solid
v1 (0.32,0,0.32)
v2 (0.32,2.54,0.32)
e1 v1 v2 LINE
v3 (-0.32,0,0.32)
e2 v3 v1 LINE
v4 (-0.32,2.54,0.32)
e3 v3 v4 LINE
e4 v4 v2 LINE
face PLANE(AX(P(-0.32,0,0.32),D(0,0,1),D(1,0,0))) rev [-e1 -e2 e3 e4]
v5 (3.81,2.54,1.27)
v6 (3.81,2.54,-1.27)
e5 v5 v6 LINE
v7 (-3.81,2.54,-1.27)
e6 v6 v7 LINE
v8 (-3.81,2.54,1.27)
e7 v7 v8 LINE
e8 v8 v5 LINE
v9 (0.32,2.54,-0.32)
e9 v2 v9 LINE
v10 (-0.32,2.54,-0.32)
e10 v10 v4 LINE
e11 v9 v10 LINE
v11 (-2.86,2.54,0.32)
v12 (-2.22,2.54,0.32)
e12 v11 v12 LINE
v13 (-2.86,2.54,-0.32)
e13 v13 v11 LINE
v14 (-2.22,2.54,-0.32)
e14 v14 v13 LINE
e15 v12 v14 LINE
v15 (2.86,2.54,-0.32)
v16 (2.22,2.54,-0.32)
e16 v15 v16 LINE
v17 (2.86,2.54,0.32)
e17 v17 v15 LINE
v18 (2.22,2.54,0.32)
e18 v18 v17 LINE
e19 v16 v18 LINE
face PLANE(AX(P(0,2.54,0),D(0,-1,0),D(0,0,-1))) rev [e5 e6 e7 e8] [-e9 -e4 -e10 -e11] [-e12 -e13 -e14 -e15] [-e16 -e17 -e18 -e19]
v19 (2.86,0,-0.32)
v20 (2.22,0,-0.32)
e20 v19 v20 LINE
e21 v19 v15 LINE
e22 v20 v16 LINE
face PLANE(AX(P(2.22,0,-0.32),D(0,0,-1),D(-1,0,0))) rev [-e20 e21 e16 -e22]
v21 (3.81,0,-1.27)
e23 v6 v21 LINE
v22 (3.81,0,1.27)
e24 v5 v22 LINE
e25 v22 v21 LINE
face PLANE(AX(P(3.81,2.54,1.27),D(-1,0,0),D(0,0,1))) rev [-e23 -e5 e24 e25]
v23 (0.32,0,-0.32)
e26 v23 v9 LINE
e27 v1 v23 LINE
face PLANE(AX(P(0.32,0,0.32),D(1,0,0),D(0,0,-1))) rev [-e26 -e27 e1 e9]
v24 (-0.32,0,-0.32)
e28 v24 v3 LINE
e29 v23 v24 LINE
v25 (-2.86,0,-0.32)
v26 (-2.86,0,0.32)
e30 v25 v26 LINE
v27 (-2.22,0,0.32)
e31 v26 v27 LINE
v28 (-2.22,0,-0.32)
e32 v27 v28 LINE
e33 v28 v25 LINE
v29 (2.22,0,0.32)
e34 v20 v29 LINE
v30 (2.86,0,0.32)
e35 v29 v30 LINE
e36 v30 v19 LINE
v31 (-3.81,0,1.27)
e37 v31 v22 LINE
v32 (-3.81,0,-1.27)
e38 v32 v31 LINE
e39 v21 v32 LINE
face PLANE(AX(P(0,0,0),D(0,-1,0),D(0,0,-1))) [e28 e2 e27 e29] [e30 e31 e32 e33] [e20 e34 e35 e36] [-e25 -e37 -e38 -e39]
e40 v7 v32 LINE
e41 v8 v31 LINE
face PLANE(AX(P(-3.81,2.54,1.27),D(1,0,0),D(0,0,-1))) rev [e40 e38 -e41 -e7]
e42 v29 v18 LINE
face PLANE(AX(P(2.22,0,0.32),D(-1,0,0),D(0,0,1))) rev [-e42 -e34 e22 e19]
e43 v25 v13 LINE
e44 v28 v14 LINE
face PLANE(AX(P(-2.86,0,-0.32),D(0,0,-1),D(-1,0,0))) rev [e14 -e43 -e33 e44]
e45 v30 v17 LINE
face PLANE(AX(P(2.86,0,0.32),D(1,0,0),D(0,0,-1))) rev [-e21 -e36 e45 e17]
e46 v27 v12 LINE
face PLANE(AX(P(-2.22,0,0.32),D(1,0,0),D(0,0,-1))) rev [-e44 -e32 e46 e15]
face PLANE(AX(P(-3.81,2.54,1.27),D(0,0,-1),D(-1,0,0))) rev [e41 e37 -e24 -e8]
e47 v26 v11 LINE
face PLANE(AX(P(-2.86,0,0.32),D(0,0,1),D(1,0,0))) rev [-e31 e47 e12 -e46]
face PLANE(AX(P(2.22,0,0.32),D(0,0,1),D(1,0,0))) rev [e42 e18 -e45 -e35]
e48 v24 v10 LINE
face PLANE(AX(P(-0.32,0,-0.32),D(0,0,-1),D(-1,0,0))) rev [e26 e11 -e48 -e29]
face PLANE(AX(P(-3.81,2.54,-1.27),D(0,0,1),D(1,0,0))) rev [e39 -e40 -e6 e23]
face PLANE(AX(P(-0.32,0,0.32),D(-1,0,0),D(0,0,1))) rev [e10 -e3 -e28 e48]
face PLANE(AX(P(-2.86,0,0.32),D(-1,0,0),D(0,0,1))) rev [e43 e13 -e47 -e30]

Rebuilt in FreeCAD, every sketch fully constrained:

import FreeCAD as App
import Part
import Sketcher
Q = App.Units.Quantity


def add_polygon(sketch, points):
    """Adds a closed chain of lines whose ends are joined by coincident constraints."""
    first, n = sketch.GeometryCount, len(points)
    for a, b in zip(points, points[1:] + points[:1]):
        sketch.addGeometry(Part.LineSegment(App.Vector(*a, 0), App.Vector(*b, 0)), False)
    for i in range(n):
        sketch.addConstraint(Sketcher.Constraint("Coincident", first + i, 2, first + (i + 1) % n, 1))

doc = App.newDocument("Part")
body = doc.addObject("PartDesign::Body", "Body")

sketch1 = doc.addObject("Sketcher::SketchObject", "Sketch")
body.addObject(sketch1)
sketch1.AttachmentSupport = (doc.XZ_Plane, [""])
sketch1.MapMode = "FlatFace"
add_polygon(sketch1, [(-3.8, -1.3), (-3.8, 1.3), (3.8, 1.3), (3.8, -1.3)])
sketch1.addConstraint([
    Sketcher.Constraint("Vertical", 0),
    Sketcher.Constraint("Horizontal", 1),
    Sketcher.Constraint("Vertical", 2),
    Sketcher.Constraint("Horizontal", 3),
    Sketcher.Constraint("Symmetric", 0, 2, 2, 2, -1, 1),
    Sketcher.Constraint("DistanceX", 1, 1, 1, 2, Q("0.3 in")),
    Sketcher.Constraint("DistanceY", 0, 1, 0, 2, Q("0.1 in")),
])
pad1 = doc.addObject("PartDesign::Pad", "Pad")
body.addObject(pad1)
pad1.Profile = sketch1
pad1.Length = Q("0.1 in")
pad1.Reversed = True

sketch2 = doc.addObject("Sketcher::SketchObject", "Sketch001")
body.addObject(sketch2)
sketch2.AttachmentSupport = (doc.XZ_Plane, [""])
sketch2.MapMode = "FlatFace"
sketch2.AttachmentOffset = App.Placement(App.Vector(0, 0, -0.1 * 25.4), App.Rotation())
add_polygon(sketch2, [(-0.3, -0.3), (-0.3, 0.3), (0.3, 0.3), (0.3, -0.3)])
add_polygon(sketch2, [(-2.9, -0.3), (-2.9, 0.3), (-2.2, 0.3), (-2.2, -0.3)])
add_polygon(sketch2, [(2.2, -0.3), (2.2, 0.3), (2.9, 0.3), (2.9, -0.3)])
sketch2.addConstraint([
    Sketcher.Constraint("Vertical", 0),
    Sketcher.Constraint("Horizontal", 1),
    Sketcher.Constraint("Vertical", 2),
    Sketcher.Constraint("Horizontal", 3),
    Sketcher.Constraint("Vertical", 4),
    Sketcher.Constraint("Horizontal", 5),
    Sketcher.Constraint("Vertical", 6),
    Sketcher.Constraint("Horizontal", 7),
    Sketcher.Constraint("Vertical", 8),
    Sketcher.Constraint("Horizontal", 9),
    Sketcher.Constraint("Vertical", 10),
    Sketcher.Constraint("Horizontal", 11),
    Sketcher.Constraint("Symmetric", 0, 2, 2, 2, -1, 1),
    Sketcher.Constraint("Symmetric", 6, 2, 8, 2, -1, 1),
    Sketcher.Constraint("Symmetric", 4, 2, 10, 2, -1, 1),
    Sketcher.Constraint("Horizontal", 1, 2, 4, 2),
    Sketcher.Constraint("Horizontal", 3, 2, 6, 2),
    Sketcher.Constraint("Equal", 3, 5),
    Sketcher.Constraint("Equal", 11, 0),
    Sketcher.Constraint("DistanceX", 4, 2, 0, 2, Q("0.1 in")),
    Sketcher.Constraint("DistanceX", 1, 1, 1, 2, 0.64),
])
pocket1 = doc.addObject("PartDesign::Pocket", "Pocket")
body.addObject(pocket1)
pocket1.Profile = sketch2
pocket1.Type = "ThroughAll"
pocket1.Reversed = True

doc.recompute()
